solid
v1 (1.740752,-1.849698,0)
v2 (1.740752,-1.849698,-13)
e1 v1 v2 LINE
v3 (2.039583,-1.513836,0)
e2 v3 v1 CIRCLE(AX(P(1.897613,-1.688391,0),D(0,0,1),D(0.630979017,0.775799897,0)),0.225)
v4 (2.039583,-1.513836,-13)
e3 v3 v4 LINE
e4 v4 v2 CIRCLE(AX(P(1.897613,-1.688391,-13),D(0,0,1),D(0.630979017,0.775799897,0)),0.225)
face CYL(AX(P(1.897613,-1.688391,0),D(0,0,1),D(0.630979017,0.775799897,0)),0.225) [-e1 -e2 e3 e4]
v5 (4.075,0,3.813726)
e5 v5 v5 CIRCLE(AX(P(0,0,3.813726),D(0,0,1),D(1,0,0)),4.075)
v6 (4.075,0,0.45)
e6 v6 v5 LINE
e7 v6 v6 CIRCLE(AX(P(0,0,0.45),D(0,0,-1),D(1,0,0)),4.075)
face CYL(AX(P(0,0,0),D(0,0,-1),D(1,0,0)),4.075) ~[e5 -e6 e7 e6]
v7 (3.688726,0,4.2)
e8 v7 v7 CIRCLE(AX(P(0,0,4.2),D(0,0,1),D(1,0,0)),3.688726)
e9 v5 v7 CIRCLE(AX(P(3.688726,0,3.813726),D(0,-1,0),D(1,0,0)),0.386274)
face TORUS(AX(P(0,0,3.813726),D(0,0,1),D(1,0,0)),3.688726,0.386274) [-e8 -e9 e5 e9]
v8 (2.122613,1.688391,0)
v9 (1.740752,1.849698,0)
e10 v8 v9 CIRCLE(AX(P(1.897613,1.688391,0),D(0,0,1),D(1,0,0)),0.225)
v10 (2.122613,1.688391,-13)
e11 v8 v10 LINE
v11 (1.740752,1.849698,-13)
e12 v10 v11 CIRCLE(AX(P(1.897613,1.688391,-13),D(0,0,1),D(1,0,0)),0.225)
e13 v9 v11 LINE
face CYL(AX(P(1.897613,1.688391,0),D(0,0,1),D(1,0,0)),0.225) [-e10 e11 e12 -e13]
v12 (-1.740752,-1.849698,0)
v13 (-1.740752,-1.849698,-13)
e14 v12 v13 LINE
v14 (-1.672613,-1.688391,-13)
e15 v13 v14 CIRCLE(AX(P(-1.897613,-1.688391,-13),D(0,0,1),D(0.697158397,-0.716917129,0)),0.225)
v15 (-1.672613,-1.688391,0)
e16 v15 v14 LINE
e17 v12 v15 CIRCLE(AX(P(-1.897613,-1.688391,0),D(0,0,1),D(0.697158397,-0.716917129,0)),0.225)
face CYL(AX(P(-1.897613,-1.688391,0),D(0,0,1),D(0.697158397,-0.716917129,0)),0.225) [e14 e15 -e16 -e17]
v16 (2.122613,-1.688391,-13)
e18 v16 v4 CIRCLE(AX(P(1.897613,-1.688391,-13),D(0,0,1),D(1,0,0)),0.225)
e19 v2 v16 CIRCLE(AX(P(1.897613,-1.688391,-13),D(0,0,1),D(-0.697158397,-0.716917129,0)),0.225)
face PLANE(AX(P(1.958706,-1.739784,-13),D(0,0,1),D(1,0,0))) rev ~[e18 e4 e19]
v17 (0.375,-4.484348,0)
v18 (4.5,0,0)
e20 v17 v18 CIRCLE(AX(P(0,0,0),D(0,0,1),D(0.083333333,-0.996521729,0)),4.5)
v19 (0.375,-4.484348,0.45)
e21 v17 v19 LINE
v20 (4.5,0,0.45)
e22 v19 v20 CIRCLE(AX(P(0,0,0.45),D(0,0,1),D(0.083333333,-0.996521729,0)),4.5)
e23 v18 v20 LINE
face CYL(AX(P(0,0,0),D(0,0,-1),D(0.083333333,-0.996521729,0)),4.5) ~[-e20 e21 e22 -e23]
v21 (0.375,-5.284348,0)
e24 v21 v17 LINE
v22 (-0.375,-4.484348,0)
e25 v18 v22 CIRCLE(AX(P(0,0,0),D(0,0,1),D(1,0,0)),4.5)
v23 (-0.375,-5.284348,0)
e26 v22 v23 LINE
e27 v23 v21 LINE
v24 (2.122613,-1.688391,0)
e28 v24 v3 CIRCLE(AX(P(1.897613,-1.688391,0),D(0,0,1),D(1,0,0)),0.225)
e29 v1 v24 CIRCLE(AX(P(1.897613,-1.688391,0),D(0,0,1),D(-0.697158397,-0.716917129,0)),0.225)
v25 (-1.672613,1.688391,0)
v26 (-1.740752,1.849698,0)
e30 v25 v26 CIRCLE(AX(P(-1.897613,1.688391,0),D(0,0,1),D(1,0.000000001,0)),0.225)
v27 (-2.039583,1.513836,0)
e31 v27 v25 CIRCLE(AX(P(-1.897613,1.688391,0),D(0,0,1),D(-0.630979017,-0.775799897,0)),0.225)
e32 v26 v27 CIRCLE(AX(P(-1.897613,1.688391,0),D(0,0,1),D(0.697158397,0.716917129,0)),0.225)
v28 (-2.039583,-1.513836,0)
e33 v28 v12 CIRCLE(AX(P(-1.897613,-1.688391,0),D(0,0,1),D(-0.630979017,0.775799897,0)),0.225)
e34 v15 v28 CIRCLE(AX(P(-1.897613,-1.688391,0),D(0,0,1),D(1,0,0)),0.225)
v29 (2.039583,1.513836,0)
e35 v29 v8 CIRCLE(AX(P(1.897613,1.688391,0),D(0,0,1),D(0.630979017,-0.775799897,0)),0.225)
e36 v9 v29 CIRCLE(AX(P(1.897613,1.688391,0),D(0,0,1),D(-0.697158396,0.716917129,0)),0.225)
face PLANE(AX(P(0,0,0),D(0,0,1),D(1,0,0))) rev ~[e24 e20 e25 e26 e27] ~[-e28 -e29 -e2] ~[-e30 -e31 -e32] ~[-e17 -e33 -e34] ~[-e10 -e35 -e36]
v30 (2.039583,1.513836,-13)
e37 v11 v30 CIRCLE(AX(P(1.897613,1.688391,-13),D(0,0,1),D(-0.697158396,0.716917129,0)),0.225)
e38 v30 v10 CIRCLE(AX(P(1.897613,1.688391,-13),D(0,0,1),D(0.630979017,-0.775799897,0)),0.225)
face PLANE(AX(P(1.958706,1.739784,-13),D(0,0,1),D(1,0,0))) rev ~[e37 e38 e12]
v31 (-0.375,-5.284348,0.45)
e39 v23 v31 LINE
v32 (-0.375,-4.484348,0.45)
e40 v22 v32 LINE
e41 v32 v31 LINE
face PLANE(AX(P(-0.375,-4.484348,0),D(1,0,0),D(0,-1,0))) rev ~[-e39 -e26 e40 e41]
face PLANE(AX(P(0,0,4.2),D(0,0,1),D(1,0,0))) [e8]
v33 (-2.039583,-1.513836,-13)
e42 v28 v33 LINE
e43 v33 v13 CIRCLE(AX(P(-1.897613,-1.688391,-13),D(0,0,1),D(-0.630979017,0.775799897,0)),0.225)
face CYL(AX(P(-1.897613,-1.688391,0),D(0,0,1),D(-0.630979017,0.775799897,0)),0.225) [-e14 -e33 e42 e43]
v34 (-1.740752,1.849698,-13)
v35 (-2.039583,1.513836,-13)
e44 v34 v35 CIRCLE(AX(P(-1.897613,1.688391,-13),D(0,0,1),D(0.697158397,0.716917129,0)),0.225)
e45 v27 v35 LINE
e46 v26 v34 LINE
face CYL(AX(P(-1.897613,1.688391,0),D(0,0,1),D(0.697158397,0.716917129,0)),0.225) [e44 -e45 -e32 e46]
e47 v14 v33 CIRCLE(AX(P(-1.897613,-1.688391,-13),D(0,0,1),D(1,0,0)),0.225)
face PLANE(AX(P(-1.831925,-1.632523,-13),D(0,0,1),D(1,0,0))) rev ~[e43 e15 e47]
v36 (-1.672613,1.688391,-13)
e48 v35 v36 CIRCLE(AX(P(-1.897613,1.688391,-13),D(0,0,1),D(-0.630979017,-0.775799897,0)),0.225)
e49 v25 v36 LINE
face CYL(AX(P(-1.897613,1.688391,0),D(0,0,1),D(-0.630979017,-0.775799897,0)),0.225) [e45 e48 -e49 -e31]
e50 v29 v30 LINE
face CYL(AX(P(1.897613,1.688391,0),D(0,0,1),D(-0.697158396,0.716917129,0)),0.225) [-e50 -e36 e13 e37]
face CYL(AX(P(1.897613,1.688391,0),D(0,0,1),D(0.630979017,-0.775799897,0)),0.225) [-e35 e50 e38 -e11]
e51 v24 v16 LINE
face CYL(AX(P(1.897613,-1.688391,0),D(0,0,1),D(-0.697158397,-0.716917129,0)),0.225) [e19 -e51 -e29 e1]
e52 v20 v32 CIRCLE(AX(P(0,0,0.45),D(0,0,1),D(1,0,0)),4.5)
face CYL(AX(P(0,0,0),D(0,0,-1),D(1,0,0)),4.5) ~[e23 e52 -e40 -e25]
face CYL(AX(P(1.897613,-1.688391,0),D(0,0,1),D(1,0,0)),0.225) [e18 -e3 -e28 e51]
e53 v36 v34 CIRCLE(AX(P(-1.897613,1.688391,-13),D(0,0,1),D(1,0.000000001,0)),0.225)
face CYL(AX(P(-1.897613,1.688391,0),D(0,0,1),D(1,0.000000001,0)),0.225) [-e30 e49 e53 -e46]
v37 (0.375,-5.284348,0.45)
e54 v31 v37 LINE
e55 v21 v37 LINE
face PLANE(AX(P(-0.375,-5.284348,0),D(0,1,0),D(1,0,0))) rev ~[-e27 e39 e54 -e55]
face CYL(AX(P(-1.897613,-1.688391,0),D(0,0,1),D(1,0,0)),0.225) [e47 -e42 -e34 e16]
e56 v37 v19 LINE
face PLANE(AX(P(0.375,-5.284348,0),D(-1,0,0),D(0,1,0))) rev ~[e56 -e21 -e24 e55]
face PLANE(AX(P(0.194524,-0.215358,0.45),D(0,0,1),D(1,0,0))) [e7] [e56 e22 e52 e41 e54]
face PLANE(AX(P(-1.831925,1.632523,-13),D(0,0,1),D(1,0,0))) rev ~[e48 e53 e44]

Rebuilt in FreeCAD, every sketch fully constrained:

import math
import FreeCAD as App
import Part
import Sketcher
from FreeCAD import Vector
Q = App.Units.Quantity


def edges_at(feature, points):
    """Names of the edges that pass closest to the given points."""
    edges = feature.Shape.Edges
    near = lambda p: min(range(len(edges)), key=lambda i: edges[i].distToShape(Part.Vertex(*p))[0])
    return sorted({f"Edge{near(p) + 1}" for p in points})

doc = App.newDocument("Part")
body = doc.addObject("PartDesign::Body", "Body")

sketch1 = body.newObject("Sketcher::SketchObject", "Sketch")
sketch1.AttachmentSupport = (doc.getObject("XY_Plane"), [""])
sketch1.MapMode = "FlatFace"
sketch1.addGeometry(Part.ArcOfCircle(Part.Circle(Vector(0, 0, 0), Vector(0, 0, 1), 4.5), math.radians(-85.219808), math.radians(0)), False)
sketch1.addGeometry(Part.ArcOfCircle(Part.Circle(Vector(0, 0, 0), Vector(0, 0, 1), 4.5), math.radians(0), math.radians(265.219808)), False)
sketch1.addGeometry(Part.LineSegment(Vector(-0.375, -4.484348, 0), Vector(-0.375, -5.284348, 0)), False)
sketch1.addGeometry(Part.LineSegment(Vector(-0.375, -5.284348, 0), Vector(0.375, -5.284348, 0)), False)
sketch1.addGeometry(Part.LineSegment(Vector(0.375, -5.284348, 0), Vector(0.375, -4.484348, 0)), False)
sketch1.addConstraint(Sketcher.Constraint("Tangent", 0, 2, 1, 1))
sketch1.addConstraint(Sketcher.Constraint("Coincident", 1, 2, 2, 1))
sketch1.addConstraint(Sketcher.Constraint("Coincident", 2, 2, 3, 1))
sketch1.addConstraint(Sketcher.Constraint("Coincident", 3, 2, 4, 1))
sketch1.addConstraint(Sketcher.Constraint("Coincident", 4, 2, 0, 1))
sketch1.addConstraint(Sketcher.Constraint("Vertical", 2))
sketch1.addConstraint(Sketcher.Constraint("Horizontal", 3))
sketch1.addConstraint(Sketcher.Constraint("Vertical", 4))
sketch1.addConstraint(Sketcher.Constraint("Coincident", 0, 3, -1, 1))
sketch1.addConstraint(Sketcher.Constraint("Equal", 0, 1))
sketch1.addConstraint(Sketcher.Constraint("PointOnObject", 0, 2, -1))
sketch1.addConstraint(Sketcher.Constraint("Horizontal", 1, 2, 4, 2))
sketch1.addConstraint(Sketcher.Constraint("Radius", 0, Q("4.5 mm")))
sketch1.addConstraint(Sketcher.Constraint("DistanceY", 2, 2, 2, 1, Q("0.8 mm")))
sketch1.addConstraint(Sketcher.Constraint("DistanceX", 3, 1, 3, 2, Q("0.75 mm")))
pad1 = body.newObject("PartDesign::Pad", "Pad")
pad1.Profile = sketch1
pad1.Length = 0.45

sketch2 = body.newObject("Sketcher::SketchObject", "Sketch001")
sketch2.AttachmentSupport = (doc.getObject("XY_Plane"), [""])
sketch2.MapMode = "FlatFace"
sketch2.addGeometry(Part.Circle(Vector(0, 0, 0), Vector(0, 0, 1), 4.075), False)
sketch2.addConstraint(Sketcher.Constraint("Coincident", 0, 3, -1, 1))
sketch2.addConstraint(Sketcher.Constraint("Diameter", 0, Q("8.15 mm")))
pad2 = body.newObject("PartDesign::Pad", "Pad001")
pad2.Profile = sketch2
pad2.Length = 4.2

sketch3 = body.newObject("Sketcher::SketchObject", "Sketch002")
sketch3.AttachmentSupport = (doc.getObject("XY_Plane"), [""])
sketch3.MapMode = "FlatFace"
sketch3.addGeometry(Part.ArcOfCircle(Part.Circle(Vector(1.897613, 1.688391, 0), Vector(0, 0, 1), 0.225), math.radians(-50.87761), math.radians(0)), False)
sketch3.addGeometry(Part.ArcOfCircle(Part.Circle(Vector(1.897613, 1.688391, 0), Vector(0, 0, 1), 0.225), math.radians(0), math.radians(134.199464)), False)
sketch3.addGeometry(Part.ArcOfCircle(Part.Circle(Vector(1.897613, 1.688391, 0), Vector(0, 0, 1), 0.225), math.radians(134.199464), math.radians(309.12239)), False)
sketch3.addGeometry(Part.ArcOfCircle(Part.Circle(Vector(1.897613, -1.688391, 0), Vector(0, 0, 1), 0.225), math.radians(0), math.radians(50.87761)), False)
sketch3.addGeometry(Part.ArcOfCircle(Part.Circle(Vector(1.897613, -1.688391, 0), Vector(0, 0, 1), 0.225), math.radians(50.87761), math.radians(225.800536)), False)
sketch3.addGeometry(Part.ArcOfCircle(Part.Circle(Vector(1.897613, -1.688391, 0), Vector(0, 0, 1), 0.225), math.radians(-134.199464), math.radians(0)), False)
sketch3.addGeometry(Part.ArcOfCircle(Part.Circle(Vector(-1.897613, 1.688391, 0), Vector(0, 0, 1), 0.225), math.radians(0), math.radians(45.800536)), False)
sketch3.addGeometry(Part.ArcOfCircle(Part.Circle(Vector(-1.897613, 1.688391, 0), Vector(0, 0, 1), 0.225), math.radians(45.800536), math.radians(230.87761)), False)
sketch3.addGeometry(Part.ArcOfCircle(Part.Circle(Vector(-1.897613, 1.688391, 0), Vector(0, 0, 1), 0.225), math.radians(-129.12239), math.radians(0)), False)
sketch3.addGeometry(Part.ArcOfCircle(Part.Circle(Vector(-1.897613, -1.688391, 0), Vector(0, 0, 1), 0.225), math.radians(-45.800536), math.radians(0)), False)
sketch3.addGeometry(Part.ArcOfCircle(Part.Circle(Vector(-1.897613, -1.688391, 0), Vector(0, 0, 1), 0.225), math.radians(0), math.radians(129.12239)), False)
sketch3.addGeometry(Part.ArcOfCircle(Part.Circle(Vector(-1.897613, -1.688391, 0), Vector(0, 0, 1), 0.225), math.radians(129.12239), math.radians(314.199464)), False)
sketch3.addConstraint(Sketcher.Constraint("Tangent", 0, 2, 1, 1))
sketch3.addConstraint(Sketcher.Constraint("Tangent", 1, 2, 2, 1))
sketch3.addConstraint(Sketcher.Constraint("Tangent", 2, 2, 0, 1))
sketch3.addConstraint(Sketcher.Constraint("Tangent", 3, 2, 4, 1))
sketch3.addConstraint(Sketcher.Constraint("Tangent", 4, 2, 5, 1))
sketch3.addConstraint(Sketcher.Constraint("Tangent", 5, 2, 3, 1))
sketch3.addConstraint(Sketcher.Constraint("Tangent", 6, 2, 7, 1))
sketch3.addConstraint(Sketcher.Constraint("Tangent", 7, 2, 8, 1))
sketch3.addConstraint(Sketcher.Constraint("Tangent", 8, 2, 6, 1))
sketch3.addConstraint(Sketcher.Constraint("Tangent", 9, 2, 10, 1))
sketch3.addConstraint(Sketcher.Constraint("Tangent", 10, 2, 11, 1))
sketch3.addConstraint(Sketcher.Constraint("Tangent", 11, 2, 9, 1))
sketch3.addConstraint(Sketcher.Constraint("Equal", 2, 3))
sketch3.addConstraint(Sketcher.Constraint("Equal", 5, 6))
sketch3.addConstraint(Sketcher.Constraint("Equal", 8, 9))
sketch3.addConstraint(Sketcher.Constraint("Symmetric", 3, 3, 6, 3, -1, 1))
sketch3.addConstraint(Sketcher.Constraint("Symmetric", 0, 3, 9, 3, -1, 1))
sketch3.addConstraint(Sketcher.Constraint("Symmetric", 0, 3, 6, 3, -2))
sketch3.addConstraint(Sketcher.Constraint("Horizontal", 8, 3, 0, 2))
sketch3.addConstraint(Sketcher.Constraint("Horizontal", 11, 3, 5, 2))
sketch3.addConstraint(Sketcher.Constraint("Horizontal", 1, 2, 6, 2))
sketch3.addConstraint(Sketcher.Constraint("Horizontal", 2, 2, 7, 2))
sketch3.addConstraint(Sketcher.Constraint("Horizontal", 0, 2, 8, 2))
sketch3.addConstraint(Sketcher.Constraint("Horizontal", 5, 2, 9, 2))
sketch3.addConstraint(Sketcher.Constraint("Horizontal", 3, 2, 10, 2))
sketch3.addConstraint(Sketcher.Constraint("Horizontal", 4, 2, 11, 2))
sketch3.addConstraint(Sketcher.Constraint("Vertical", 2, 2, 3, 2))
sketch3.addConstraint(Sketcher.Constraint("Vertical", 1, 2, 4, 2))
sketch3.addConstraint(Sketcher.Constraint("Radius", 0, Q("0.225 mm")))
sketch3.addConstraint(Sketcher.Constraint("DistanceY", -1, 1, 0, 3, Q("1.688391 mm")))
sketch3.addConstraint(Sketcher.Constraint("DistanceX", 1, 2, 0, 3, Q("0.156861 mm")))
sketch3.addConstraint(Sketcher.Constraint("DistanceX", 2, 2, 0, 2, Q("0.08303 mm")))
sketch3.addConstraint(Sketcher.Constraint("DistanceX", -1, 1, 0, 3, Q("1.897613 mm")))
pad3 = body.newObject("PartDesign::Pad", "Pad002")
pad3.Profile = sketch3
pad3.Length = 13
pad3.Reversed = True
doc.recompute()

fillet = body.newObject("PartDesign::Fillet", "Fillet")
fillet.Base = (pad3, edges_at(pad3, [(-4.075, 0, 4.2)]))
fillet.Radius = 0.386274

doc.recompute()
